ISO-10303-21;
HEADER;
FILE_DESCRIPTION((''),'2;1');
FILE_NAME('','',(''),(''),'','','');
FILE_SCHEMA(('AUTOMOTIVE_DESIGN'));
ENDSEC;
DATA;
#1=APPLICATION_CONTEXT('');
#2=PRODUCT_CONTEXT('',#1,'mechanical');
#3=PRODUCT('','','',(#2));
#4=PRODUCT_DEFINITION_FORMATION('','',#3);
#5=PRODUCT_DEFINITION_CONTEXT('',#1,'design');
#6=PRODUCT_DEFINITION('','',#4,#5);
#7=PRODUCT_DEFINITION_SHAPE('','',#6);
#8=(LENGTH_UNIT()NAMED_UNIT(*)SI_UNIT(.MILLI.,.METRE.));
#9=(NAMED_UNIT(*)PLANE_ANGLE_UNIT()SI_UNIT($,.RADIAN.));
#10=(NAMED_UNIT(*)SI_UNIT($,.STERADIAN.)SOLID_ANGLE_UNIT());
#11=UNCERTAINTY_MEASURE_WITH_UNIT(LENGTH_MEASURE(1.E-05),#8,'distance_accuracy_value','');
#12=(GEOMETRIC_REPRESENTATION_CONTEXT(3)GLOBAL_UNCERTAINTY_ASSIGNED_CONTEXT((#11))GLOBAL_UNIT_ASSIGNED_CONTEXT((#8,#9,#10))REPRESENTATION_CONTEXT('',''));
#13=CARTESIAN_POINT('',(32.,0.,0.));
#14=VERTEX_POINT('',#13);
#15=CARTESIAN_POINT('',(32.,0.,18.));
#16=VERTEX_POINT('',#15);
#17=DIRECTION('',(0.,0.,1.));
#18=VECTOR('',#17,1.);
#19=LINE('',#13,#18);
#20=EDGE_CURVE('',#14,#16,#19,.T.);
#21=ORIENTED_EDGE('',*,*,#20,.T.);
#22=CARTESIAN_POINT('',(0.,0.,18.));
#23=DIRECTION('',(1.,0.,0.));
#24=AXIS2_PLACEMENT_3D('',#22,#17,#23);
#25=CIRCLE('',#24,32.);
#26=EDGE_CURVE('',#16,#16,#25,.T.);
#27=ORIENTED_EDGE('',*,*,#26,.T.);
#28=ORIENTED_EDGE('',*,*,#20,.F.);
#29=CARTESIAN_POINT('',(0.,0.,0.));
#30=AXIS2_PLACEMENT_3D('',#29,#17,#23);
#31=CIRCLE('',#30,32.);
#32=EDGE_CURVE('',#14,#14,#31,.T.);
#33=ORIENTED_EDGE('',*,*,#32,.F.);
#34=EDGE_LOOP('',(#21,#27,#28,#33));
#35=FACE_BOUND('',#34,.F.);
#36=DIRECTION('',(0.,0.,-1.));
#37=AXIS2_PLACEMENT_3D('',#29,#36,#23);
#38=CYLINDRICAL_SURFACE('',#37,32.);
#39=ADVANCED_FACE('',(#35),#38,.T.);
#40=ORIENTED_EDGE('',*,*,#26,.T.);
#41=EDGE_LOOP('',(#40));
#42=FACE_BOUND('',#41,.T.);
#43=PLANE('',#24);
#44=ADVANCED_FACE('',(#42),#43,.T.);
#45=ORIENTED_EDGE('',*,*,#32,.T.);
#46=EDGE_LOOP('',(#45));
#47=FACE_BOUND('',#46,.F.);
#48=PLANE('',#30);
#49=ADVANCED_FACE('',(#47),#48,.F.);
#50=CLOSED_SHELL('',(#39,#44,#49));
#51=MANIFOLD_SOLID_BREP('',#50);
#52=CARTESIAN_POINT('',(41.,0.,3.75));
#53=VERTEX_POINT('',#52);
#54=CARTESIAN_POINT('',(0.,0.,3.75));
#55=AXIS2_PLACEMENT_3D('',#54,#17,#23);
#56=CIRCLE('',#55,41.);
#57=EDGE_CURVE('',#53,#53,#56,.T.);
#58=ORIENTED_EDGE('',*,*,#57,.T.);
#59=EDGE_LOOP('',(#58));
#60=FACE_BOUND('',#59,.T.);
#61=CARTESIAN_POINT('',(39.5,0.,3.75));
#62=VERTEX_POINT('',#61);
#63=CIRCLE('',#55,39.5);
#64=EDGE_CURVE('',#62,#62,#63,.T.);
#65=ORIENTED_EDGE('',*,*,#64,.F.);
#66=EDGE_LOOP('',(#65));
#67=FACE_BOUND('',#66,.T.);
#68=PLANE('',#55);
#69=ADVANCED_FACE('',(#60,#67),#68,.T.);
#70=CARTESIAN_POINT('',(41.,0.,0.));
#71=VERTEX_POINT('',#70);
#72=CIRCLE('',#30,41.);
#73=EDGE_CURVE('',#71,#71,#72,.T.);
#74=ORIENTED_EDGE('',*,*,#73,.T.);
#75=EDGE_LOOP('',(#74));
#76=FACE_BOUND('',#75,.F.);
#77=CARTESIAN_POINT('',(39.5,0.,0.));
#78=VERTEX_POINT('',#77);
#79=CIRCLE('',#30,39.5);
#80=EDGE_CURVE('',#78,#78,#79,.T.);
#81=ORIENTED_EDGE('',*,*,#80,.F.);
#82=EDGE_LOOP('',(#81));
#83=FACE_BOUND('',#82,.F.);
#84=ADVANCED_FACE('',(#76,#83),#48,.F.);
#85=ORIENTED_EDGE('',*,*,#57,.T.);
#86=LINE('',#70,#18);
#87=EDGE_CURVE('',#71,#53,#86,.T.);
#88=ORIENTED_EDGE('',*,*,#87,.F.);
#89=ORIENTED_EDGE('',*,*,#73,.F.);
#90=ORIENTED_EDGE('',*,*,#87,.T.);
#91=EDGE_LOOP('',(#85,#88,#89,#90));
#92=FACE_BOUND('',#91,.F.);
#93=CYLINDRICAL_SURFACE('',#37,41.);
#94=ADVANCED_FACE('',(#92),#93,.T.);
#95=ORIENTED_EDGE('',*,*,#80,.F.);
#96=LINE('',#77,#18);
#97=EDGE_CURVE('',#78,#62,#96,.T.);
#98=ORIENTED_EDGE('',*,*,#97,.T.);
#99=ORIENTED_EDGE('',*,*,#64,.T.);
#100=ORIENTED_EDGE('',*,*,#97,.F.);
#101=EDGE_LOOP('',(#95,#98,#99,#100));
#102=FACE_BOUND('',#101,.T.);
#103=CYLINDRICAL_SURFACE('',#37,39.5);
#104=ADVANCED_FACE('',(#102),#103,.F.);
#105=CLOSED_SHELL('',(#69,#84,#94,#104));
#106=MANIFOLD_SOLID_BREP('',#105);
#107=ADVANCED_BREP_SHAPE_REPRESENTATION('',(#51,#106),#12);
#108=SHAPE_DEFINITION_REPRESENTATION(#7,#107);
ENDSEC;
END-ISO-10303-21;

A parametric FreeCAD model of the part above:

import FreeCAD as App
import Part
import Sketcher

doc = App.newDocument("Part")
params = doc.addObject("Spreadsheet::Sheet", "Params")
for row, (alias, value) in enumerate([
    ("sketch1_diameter", "82 mm"),
    ("sketch1_diameter2", "79 mm"),
    ("pad1_length", "3.75 mm"),
    ("sketch2_diameter", "64 mm"),
    ("pad2_length", "18 mm"),
], start=1):
    params.set(f"A{row}", alias)
    params.set(f"B{row}", "=" + value)
    params.setAlias(f"B{row}", alias)

body = doc.addObject("PartDesign::Body", "Body")

# Sketch on XY plane
sketch1 = doc.addObject("Sketcher::SketchObject", "Sketch")
body.addObject(sketch1)
sketch1.AttachmentSupport = (doc.XY_Plane, [""])
sketch1.MapMode = "FlatFace"
sketch1.addGeometry([
    Part.Circle(App.Vector(0, 0, 0), App.Vector(0, 0, 1), 41),
    Part.Circle(App.Vector(0, 0, 0), App.Vector(0, 0, 1), 39.5),
], False)
sketch1.addConstraint([
    Sketcher.Constraint("Coincident", 0, 3, -1, 1),
    Sketcher.Constraint("Coincident", 1, 3, -1, 1),
    Sketcher.Constraint("Diameter", 0, 82.0),
    Sketcher.Constraint("Diameter", 1, 79.0),
])
sketch1.setExpression("Constraints[2]", "Params.sketch1_diameter")
sketch1.setExpression("Constraints[3]", "Params.sketch1_diameter2")
pad1 = doc.addObject("PartDesign::Pad", "Pad")
body.addObject(pad1)
pad1.Profile = sketch1
pad1.setExpression("Length", "Params.pad1_length")
body2 = doc.addObject("PartDesign::Body", "Body001")

# Sketch on XY plane
sketch2 = doc.addObject("Sketcher::SketchObject", "Sketch001")
body2.addObject(sketch2)
sketch2.AttachmentSupport = (doc.getObject("XY_Plane001"), [""])
sketch2.MapMode = "FlatFace"
sketch2.addGeometry(Part.Circle(App.Vector(0, 0, 0), App.Vector(0, 0, 1), 32), False)
sketch2.addConstraint([
    Sketcher.Constraint("Coincident", 0, 3, -1, 1),
    Sketcher.Constraint("Diameter", 0, 64.0),
])
sketch2.setExpression("Constraints[1]", "Params.sketch2_diameter")
pad2 = doc.addObject("PartDesign::Pad", "Pad001")
body2.addObject(pad2)
pad2.Profile = sketch2
pad2.setExpression("Length", "Params.pad2_length")

doc.recompute()
